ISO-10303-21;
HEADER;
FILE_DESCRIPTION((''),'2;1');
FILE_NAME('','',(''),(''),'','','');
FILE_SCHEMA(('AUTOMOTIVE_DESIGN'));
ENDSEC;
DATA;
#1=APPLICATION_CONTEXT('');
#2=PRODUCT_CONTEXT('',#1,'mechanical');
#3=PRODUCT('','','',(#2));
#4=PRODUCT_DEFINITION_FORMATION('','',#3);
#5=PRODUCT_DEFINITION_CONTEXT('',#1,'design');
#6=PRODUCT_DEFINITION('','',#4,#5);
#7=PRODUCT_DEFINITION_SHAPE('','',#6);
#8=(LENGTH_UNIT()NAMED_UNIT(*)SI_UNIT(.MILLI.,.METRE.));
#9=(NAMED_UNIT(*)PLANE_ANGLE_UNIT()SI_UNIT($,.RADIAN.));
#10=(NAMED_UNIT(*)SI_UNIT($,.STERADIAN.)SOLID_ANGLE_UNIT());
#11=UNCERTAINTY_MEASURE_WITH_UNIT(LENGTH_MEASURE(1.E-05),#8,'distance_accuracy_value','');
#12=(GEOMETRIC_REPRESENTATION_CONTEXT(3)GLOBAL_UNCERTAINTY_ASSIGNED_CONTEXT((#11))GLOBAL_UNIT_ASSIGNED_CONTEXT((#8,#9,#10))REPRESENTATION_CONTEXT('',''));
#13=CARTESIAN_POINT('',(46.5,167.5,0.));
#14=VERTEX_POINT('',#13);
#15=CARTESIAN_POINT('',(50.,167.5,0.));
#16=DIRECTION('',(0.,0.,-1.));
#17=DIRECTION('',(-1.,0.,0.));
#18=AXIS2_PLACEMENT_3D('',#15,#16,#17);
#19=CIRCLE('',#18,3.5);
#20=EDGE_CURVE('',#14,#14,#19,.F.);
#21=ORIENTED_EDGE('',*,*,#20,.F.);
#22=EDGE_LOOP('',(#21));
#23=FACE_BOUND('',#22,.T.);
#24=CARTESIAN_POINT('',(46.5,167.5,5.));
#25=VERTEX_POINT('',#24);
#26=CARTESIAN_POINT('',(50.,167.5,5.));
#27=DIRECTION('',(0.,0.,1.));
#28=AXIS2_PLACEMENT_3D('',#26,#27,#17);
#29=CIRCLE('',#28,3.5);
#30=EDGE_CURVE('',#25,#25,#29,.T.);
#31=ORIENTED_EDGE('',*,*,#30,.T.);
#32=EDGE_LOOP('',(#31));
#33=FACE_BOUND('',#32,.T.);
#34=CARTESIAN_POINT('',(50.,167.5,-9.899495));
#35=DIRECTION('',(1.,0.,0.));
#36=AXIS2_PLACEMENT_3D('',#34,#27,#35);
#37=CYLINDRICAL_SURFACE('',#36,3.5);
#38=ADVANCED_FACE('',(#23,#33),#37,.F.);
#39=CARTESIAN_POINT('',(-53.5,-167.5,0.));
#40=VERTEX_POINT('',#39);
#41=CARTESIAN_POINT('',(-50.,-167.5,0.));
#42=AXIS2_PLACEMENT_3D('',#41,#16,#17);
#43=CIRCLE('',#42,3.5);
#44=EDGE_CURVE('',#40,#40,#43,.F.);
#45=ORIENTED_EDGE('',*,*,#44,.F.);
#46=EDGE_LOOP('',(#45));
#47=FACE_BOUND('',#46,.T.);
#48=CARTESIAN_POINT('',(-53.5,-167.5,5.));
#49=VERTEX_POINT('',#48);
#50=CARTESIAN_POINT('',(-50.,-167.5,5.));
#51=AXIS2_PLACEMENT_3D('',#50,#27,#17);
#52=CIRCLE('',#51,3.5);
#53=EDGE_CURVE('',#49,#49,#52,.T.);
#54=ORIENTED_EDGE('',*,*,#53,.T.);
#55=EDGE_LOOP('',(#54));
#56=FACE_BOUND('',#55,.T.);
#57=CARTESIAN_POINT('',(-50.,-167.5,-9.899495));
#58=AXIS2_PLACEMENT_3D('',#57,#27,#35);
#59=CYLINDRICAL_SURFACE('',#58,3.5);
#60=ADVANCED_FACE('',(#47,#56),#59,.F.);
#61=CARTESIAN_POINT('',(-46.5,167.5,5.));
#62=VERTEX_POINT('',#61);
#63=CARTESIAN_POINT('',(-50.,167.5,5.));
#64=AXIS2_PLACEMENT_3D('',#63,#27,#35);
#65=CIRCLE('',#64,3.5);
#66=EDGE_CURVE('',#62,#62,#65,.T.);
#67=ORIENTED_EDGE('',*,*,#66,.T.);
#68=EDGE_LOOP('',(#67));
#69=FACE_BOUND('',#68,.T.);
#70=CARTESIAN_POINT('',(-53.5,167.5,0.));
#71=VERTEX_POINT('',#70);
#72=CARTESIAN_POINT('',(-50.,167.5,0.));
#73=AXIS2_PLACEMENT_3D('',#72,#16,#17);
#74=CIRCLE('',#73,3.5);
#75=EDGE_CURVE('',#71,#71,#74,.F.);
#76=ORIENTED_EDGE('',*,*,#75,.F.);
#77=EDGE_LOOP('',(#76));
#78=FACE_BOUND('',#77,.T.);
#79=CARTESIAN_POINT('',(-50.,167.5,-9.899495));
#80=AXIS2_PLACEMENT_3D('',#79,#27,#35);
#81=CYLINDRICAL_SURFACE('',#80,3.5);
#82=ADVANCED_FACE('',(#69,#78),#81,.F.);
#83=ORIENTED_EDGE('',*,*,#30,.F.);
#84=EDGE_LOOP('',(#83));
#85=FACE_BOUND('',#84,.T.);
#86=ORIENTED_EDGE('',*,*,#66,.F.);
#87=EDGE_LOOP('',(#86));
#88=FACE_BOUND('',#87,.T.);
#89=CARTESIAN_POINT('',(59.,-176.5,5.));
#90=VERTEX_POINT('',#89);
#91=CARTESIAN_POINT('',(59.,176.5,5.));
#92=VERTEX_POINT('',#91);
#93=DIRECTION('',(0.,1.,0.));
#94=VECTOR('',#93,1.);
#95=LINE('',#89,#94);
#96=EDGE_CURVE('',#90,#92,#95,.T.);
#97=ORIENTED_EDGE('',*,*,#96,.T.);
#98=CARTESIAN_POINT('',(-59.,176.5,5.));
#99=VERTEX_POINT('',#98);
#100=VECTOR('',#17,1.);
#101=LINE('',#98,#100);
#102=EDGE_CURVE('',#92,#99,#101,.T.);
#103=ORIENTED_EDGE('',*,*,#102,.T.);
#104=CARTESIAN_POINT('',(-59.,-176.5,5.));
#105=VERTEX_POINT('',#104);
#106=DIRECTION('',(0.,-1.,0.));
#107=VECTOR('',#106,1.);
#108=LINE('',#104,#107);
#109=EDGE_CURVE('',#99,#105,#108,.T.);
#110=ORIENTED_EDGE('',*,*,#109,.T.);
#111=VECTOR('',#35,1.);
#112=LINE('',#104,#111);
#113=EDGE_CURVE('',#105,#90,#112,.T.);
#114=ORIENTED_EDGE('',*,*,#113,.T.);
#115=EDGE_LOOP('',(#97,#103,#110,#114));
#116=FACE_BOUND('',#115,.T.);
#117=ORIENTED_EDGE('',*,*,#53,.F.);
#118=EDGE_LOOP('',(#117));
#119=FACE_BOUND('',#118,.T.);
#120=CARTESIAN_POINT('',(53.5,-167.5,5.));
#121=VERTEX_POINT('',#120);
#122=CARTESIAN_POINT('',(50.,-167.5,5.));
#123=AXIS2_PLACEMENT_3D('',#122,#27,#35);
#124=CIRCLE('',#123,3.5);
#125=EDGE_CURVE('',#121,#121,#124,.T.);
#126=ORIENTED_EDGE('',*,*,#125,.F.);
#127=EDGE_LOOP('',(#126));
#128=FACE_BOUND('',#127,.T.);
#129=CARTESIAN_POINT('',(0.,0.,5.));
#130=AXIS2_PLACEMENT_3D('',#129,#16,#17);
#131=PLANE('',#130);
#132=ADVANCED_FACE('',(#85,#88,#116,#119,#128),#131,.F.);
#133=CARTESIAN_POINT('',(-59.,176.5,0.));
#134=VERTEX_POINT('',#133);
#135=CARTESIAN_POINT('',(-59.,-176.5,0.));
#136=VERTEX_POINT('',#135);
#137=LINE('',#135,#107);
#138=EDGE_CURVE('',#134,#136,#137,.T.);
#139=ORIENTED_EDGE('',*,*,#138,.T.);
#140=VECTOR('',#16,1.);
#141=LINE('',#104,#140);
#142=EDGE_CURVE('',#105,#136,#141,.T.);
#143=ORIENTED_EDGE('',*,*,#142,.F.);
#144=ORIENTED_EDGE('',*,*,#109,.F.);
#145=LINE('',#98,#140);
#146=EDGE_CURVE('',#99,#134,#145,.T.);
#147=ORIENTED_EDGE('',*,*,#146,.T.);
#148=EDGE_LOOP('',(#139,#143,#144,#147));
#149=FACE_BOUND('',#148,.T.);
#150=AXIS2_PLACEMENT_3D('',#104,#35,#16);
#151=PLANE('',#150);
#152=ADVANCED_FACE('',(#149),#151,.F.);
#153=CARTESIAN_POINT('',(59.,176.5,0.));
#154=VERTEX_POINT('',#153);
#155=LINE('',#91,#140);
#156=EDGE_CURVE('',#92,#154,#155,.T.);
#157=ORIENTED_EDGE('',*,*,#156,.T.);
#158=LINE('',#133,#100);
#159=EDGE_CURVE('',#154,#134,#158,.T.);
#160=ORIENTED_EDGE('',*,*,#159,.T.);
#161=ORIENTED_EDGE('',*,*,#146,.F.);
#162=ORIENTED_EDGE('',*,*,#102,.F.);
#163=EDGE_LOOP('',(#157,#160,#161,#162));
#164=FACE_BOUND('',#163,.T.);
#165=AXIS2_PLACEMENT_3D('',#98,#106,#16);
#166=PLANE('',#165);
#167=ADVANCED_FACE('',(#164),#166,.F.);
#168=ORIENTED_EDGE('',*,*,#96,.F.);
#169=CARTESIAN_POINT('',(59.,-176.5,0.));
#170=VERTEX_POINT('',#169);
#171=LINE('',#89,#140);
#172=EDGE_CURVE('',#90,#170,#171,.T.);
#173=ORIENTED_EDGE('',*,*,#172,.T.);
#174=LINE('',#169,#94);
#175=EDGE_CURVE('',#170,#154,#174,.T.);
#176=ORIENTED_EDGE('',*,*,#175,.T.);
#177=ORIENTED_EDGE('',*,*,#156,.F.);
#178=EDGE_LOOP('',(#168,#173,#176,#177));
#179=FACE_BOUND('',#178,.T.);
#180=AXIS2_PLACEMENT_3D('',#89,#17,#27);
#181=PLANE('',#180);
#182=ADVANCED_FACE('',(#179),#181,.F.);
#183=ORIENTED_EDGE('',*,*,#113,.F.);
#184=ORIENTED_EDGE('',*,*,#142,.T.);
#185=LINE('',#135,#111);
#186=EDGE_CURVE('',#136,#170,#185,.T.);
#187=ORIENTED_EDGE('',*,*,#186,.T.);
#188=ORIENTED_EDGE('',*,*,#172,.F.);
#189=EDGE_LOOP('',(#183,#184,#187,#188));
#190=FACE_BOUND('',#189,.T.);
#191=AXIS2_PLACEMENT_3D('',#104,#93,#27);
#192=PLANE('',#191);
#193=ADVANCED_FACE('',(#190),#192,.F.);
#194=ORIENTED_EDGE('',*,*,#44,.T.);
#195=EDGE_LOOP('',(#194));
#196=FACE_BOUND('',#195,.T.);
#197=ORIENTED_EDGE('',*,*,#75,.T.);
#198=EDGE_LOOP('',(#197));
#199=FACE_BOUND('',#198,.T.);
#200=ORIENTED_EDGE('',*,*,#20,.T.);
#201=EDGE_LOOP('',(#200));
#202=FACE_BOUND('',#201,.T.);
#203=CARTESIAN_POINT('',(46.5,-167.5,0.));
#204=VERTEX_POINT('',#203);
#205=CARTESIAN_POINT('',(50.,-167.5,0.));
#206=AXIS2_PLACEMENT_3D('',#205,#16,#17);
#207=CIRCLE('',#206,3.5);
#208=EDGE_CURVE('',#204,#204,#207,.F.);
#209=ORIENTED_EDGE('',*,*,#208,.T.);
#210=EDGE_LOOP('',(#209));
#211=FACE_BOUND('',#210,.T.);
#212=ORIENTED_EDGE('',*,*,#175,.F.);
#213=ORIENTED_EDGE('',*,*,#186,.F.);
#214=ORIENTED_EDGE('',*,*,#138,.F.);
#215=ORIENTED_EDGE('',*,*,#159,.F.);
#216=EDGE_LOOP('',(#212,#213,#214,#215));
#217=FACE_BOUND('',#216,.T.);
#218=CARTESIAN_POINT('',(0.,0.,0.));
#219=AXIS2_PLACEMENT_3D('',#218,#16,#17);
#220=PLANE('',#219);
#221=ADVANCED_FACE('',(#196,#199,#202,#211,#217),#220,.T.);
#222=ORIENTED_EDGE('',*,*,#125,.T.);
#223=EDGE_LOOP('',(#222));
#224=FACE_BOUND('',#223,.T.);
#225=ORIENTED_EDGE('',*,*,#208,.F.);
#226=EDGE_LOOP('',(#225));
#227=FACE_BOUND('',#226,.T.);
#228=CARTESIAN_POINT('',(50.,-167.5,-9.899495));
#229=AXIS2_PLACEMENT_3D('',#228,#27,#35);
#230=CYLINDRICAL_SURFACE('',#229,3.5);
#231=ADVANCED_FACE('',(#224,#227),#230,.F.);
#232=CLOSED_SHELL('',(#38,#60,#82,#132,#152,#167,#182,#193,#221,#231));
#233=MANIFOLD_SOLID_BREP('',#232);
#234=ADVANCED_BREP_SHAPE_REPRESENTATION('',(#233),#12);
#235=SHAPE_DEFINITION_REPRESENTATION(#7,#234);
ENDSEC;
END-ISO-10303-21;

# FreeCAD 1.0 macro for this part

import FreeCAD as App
import Part
import Sketcher


def add_polygon(sketch, points):
    """Adds a closed chain of lines whose ends are joined by coincident constraints."""
    first, n = sketch.GeometryCount, len(points)
    for a, b in zip(points, points[1:] + points[:1]):
        sketch.addGeometry(Part.LineSegment(App.Vector(*a, 0), App.Vector(*b, 0)), False)
    for i in range(n):
        sketch.addConstraint(Sketcher.Constraint("Coincident", first + i, 2, first + (i + 1) % n, 1))

doc = App.newDocument("Part")
body = doc.addObject("PartDesign::Body", "Body")

# Sketch on XY plane
sketch1 = doc.addObject("Sketcher::SketchObject", "Sketch")
body.addObject(sketch1)
sketch1.AttachmentSupport = (doc.XY_Plane, [""])
sketch1.MapMode = "FlatFace"
add_polygon(sketch1, [(-59, 176.5), (-59, -176.5), (59, -176.5), (59, 176.5)])  # lines 0-3
sketch1.addConstraint(Sketcher.Constraint("Vertical", 0))
sketch1.addConstraint(Sketcher.Constraint("Horizontal", 1))
sketch1.addConstraint(Sketcher.Constraint("Vertical", 2))
sketch1.addConstraint(Sketcher.Constraint("Horizontal", 3))
sketch1.addConstraint(Sketcher.Constraint("Symmetric", 0, 2, 2, 2, -1, 1))
sketch1.addConstraint(Sketcher.Constraint("DistanceX", 1, 1, 1, 2, 118.0))
sketch1.addConstraint(Sketcher.Constraint("DistanceY", 0, 2, 0, 1, 353.0))
pad1 = doc.addObject("PartDesign::Pad", "Pad")
body.addObject(pad1)
pad1.Profile = sketch1
pad1.Length = 5

# Sketch on XY plane
sketch2 = doc.addObject("Sketcher::SketchObject", "Sketch001")
body.addObject(sketch2)
sketch2.AttachmentSupport = (doc.XY_Plane, [""])
sketch2.MapMode = "FlatFace"
sketch2.AttachmentOffset = App.Placement(App.Vector(0, 0, 5), App.Rotation())
sketch2.addGeometry(Part.Circle(App.Vector(-50, 167.5, 0), App.Vector(0, 0, 1), 3.5), False)
sketch2.addGeometry(Part.Circle(App.Vector(50, 167.5, 0), App.Vector(0, 0, 1), 3.5), False)
sketch2.addGeometry(Part.Circle(App.Vector(50, -167.5, 0), App.Vector(0, 0, 1), 3.5), False)
sketch2.addGeometry(Part.Circle(App.Vector(-50, -167.5, 0), App.Vector(0, 0, 1), 3.5), False)
sketch2.addConstraint(Sketcher.Constraint("Equal", 0, 1))
sketch2.addConstraint(Sketcher.Constraint("Equal", 1, 2))
sketch2.addConstraint(Sketcher.Constraint("Equal", 2, 3))
sketch2.addConstraint(Sketcher.Constraint("Symmetric", 0, 3, 2, 3, -1, 1))
sketch2.addConstraint(Sketcher.Constraint("Symmetric", 1, 3, 3, 3, -1, 1))
sketch2.addConstraint(Sketcher.Constraint("Symmetric", 0, 3, 1, 3, -2))
sketch2.addConstraint(Sketcher.Constraint("Diameter", 0, 7.0))
sketch2.addConstraint(Sketcher.Constraint("DistanceX", 0, 3, -1, 1, 50.0))
sketch2.addConstraint(Sketcher.Constraint("DistanceY", 2, 3, 1, 3, 335.0))
pocket1 = doc.addObject("PartDesign::Pocket", "Pocket")
body.addObject(pocket1)
pocket1.Profile = sketch2
pocket1.Length = 5

doc.recompute()
